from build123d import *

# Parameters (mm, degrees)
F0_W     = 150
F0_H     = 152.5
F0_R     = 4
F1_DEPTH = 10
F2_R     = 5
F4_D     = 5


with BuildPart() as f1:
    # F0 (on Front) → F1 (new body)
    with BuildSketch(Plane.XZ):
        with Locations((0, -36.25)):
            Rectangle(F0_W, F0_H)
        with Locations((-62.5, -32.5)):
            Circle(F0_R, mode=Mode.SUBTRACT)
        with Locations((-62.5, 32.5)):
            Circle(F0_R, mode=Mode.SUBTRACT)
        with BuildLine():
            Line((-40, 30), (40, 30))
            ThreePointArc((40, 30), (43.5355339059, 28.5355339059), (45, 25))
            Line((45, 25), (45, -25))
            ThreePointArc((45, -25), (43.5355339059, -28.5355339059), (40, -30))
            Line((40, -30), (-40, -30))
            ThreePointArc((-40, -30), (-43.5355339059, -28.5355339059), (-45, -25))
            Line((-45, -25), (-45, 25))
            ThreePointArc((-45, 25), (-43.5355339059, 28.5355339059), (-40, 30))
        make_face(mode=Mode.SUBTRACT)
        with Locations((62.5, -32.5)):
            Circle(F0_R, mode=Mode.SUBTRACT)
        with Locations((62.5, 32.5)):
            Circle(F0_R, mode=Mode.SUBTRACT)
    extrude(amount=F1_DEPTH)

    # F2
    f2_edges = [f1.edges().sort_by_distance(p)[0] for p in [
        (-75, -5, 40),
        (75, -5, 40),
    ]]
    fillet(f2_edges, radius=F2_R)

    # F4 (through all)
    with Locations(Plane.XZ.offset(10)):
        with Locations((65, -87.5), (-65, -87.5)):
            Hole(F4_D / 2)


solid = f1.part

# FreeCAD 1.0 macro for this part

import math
import FreeCAD as App
import Part
import Sketcher
from FreeCAD import Vector


def edges_at(feature, points):
    """Names of the edges that pass closest to the given points."""
    edges = feature.Shape.Edges
    near = lambda p: min(range(len(edges)), key=lambda i: edges[i].distToShape(Part.Vertex(*p))[0])
    return sorted({f"Edge{near(p) + 1}" for p in points})

doc = App.newDocument("Part")
body = doc.addObject("PartDesign::Body", "Body")

# Sketch on XZ plane
sketch1 = body.newObject("Sketcher::SketchObject", "Sketch")
sketch1.AttachmentSupport = (doc.getObject("XZ_Plane"), [""])
sketch1.MapMode = "FlatFace"
sketch1.addGeometry([
    Part.LineSegment(Vector(-75, 40, 0), Vector(-75, -112.5, 0)),  # 0
    Part.LineSegment(Vector(-75, -112.5, 0), Vector(75, -112.5, 0)),  # 1
    Part.LineSegment(Vector(75, -112.5, 0), Vector(75, 40, 0)),  # 2
    Part.LineSegment(Vector(75, 40, 0), Vector(-75, 40, 0)),  # 3
    Part.Circle(Vector(-62.5, -32.5, 0), Vector(0, 0, 1), 4),  # 4
    Part.Circle(Vector(62.5, -32.5, 0), Vector(0, 0, 1), 4),  # 5
    Part.Circle(Vector(-62.5, 32.5, 0), Vector(0, 0, 1), 4),  # 6
    Part.ArcOfCircle(Part.Circle(Vector(-40, 25, 0), Vector(0, 0, 1), 5), math.radians(90), math.radians(180)),  # 7
    Part.LineSegment(Vector(-40, 30, 0), Vector(40, 30, 0)),  # 8
    Part.ArcOfCircle(Part.Circle(Vector(40, 25, 0), Vector(0, 0, 1), 5), math.radians(0), math.radians(90)),  # 9
    Part.LineSegment(Vector(45, 25, 0), Vector(45, -25, 0)),  # 10
    Part.ArcOfCircle(Part.Circle(Vector(40, -25, 0), Vector(0, 0, 1), 5), math.radians(-90), math.radians(0)),  # 11
    Part.LineSegment(Vector(40, -30, 0), Vector(-40, -30, 0)),  # 12
    Part.ArcOfCircle(Part.Circle(Vector(-40, -25, 0), Vector(0, 0, 1), 5), math.radians(180), math.radians(270)),  # 13
    Part.LineSegment(Vector(-45, -25, 0), Vector(-45, 25, 0)),  # 14
    Part.Circle(Vector(62.5, 32.5, 0), Vector(0, 0, 1), 4),  # 15
], False)
sketch1.addConstraint([
    Sketcher.Constraint("Coincident", 0, 2, 1, 1),
    Sketcher.Constraint("Coincident", 1, 2, 2, 1),
    Sketcher.Constraint("Coincident", 2, 2, 3, 1),
    Sketcher.Constraint("Coincident", 3, 2, 0, 1),
    Sketcher.Constraint("Tangent", 7, 1, 8, 1),
    Sketcher.Constraint("Tangent", 8, 2, 9, 2),
    Sketcher.Constraint("Tangent", 9, 1, 10, 1),
    Sketcher.Constraint("Tangent", 10, 2, 11, 2),
    Sketcher.Constraint("Tangent", 11, 1, 12, 1),
    Sketcher.Constraint("Tangent", 12, 2, 13, 2),
    Sketcher.Constraint("Tangent", 13, 1, 14, 1),
    Sketcher.Constraint("Tangent", 14, 2, 7, 2),
    Sketcher.Constraint("Vertical", 0),
    Sketcher.Constraint("Horizontal", 1),
    Sketcher.Constraint("Vertical", 2),
    Sketcher.Constraint("Horizontal", 3),
    Sketcher.Constraint("Horizontal", 8),
    Sketcher.Constraint("Vertical", 10),
    Sketcher.Constraint("Horizontal", 12),
    Sketcher.Constraint("Vertical", 14),
    Sketcher.Constraint("Equal", 4, 5),
    Sketcher.Constraint("Equal", 5, 6),
    Sketcher.Constraint("Equal", 7, 9),
    Sketcher.Constraint("Equal", 9, 11),
    Sketcher.Constraint("Equal", 11, 13),
    Sketcher.Constraint("Equal", 6, 15),
    Sketcher.Constraint("Symmetric", 5, 3, 6, 3, -1, 1),
    Sketcher.Constraint("Symmetric", 7, 3, 11, 3, -1, 1),
    Sketcher.Constraint("Symmetric", 4, 3, 15, 3, -1, 1),
    Sketcher.Constraint("Symmetric", 4, 3, 5, 3, -2),
    Sketcher.Constraint("Diameter", 4, 8.0),
    Sketcher.Constraint("Radius", 7, 5.0),
    Sketcher.Constraint("DistanceX", 1, 1, 1, 2, 150.0),
    Sketcher.Constraint("DistanceX", 8, 1, 8, 2, 80.0),
    Sketcher.Constraint("DistanceY", 10, 2, 10, 1, 50.0),
    Sketcher.Constraint("DistanceY", 0, 2, 0, 1, 152.5),
    Sketcher.Constraint("DistanceX", 0, 2, -1, 1, 75.0),
    Sketcher.Constraint("DistanceY", -1, 1, 2, 2, 40.0),
    Sketcher.Constraint("DistanceX", 4, 3, 5, 3, 125.0),
    Sketcher.Constraint("DistanceY", 4, 3, 6, 3, 65.0),
])
pad1 = body.newObject("PartDesign::Pad", "Pad")
pad1.Profile = sketch1
pad1.Length = 10
doc.recompute()

fillet = body.newObject("PartDesign::Fillet", "Fillet")
fillet.Base = (pad1, edges_at(pad1, [(-75, -5, 40), (75, -5, 40)]))
fillet.Radius = 5

# Sketch on XZ plane
sketch2 = body.newObject("Sketcher::SketchObject", "Sketch001")
sketch2.AttachmentSupport = (doc.getObject("XZ_Plane"), [""])
sketch2.MapMode = "FlatFace"
sketch2.AttachmentOffset = App.Placement(Vector(0, 0, 10), App.Rotation())
sketch2.addGeometry([
    Part.Circle(Vector(65, -87.5, 0), Vector(0, 0, 1), 2.5),
    Part.Circle(Vector(-65, -87.5, 0), Vector(0, 0, 1), 2.5),
], False)
sketch2.addConstraint([
    Sketcher.Constraint("Equal", 0, 1),
    Sketcher.Constraint("Symmetric", 0, 3, 1, 3, -2),
    Sketcher.Constraint("Diameter", 0, 5.0),
    Sketcher.Constraint("DistanceX", -1, 1, 0, 3, 65.0),
    Sketcher.Constraint("DistanceY", 0, 3, -1, 1, 87.5),
])
doc.recompute()
hole = body.newObject("PartDesign::Hole", "Hole")
hole.Profile = sketch2
hole.ThreadType = "None"
hole.Diameter = 5
hole.DepthType = "ThroughAll"

doc.recompute()
